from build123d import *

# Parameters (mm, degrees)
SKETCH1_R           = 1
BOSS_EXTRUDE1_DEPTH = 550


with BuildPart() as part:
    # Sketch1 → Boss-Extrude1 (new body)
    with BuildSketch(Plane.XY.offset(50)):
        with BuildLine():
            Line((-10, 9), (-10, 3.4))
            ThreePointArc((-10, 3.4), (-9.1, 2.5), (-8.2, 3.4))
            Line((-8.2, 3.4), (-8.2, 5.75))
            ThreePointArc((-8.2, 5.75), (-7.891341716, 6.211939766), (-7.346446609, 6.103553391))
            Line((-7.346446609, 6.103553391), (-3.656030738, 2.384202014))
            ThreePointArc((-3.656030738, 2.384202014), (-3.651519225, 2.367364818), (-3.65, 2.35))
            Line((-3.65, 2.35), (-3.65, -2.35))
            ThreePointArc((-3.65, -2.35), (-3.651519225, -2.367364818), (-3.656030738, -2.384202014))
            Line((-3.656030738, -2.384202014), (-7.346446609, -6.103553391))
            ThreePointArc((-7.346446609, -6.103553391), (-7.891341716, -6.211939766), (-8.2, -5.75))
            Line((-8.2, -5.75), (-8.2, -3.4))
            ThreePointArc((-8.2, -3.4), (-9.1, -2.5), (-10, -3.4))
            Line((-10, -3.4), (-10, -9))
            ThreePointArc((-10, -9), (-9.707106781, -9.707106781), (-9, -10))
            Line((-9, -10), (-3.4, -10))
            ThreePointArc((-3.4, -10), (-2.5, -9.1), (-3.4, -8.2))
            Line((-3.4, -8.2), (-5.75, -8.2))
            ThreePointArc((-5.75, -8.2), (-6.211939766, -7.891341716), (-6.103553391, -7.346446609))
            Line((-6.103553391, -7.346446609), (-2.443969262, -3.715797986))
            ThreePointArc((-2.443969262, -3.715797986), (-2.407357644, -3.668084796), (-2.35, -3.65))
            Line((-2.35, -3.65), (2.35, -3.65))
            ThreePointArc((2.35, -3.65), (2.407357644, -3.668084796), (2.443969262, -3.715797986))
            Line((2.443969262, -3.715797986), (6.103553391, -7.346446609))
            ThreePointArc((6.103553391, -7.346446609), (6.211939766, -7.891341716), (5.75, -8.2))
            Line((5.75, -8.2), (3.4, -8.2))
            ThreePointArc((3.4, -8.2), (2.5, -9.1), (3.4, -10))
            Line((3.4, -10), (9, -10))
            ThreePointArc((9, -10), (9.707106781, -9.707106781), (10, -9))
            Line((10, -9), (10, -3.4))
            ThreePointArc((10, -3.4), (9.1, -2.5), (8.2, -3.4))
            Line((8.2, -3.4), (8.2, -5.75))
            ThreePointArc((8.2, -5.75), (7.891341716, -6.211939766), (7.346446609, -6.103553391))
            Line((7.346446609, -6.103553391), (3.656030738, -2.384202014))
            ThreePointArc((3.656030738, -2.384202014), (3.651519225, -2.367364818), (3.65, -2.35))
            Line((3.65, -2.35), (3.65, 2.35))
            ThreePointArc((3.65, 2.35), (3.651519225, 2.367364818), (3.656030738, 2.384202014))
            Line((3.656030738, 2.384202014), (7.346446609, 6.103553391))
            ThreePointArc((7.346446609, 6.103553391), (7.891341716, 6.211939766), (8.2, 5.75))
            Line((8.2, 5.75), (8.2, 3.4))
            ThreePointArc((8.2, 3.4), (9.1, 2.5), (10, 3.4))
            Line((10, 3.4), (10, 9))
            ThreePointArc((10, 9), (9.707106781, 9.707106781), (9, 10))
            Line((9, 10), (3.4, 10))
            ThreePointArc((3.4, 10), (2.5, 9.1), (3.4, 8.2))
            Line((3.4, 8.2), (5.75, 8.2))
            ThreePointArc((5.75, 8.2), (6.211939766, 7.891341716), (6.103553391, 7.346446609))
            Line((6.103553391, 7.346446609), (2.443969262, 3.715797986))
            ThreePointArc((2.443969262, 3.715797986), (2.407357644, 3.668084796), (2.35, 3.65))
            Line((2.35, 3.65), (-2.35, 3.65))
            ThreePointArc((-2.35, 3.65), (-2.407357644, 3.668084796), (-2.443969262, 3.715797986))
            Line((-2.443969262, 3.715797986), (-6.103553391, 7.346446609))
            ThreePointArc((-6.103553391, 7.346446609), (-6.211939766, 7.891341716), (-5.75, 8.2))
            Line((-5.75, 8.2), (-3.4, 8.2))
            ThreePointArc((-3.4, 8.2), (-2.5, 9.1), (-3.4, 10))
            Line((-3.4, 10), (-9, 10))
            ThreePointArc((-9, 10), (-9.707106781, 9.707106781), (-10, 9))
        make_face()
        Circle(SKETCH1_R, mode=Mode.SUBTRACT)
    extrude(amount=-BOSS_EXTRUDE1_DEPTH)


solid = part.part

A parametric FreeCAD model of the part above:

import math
import FreeCAD as App
import Part
import Sketcher
from FreeCAD import Vector

doc = App.newDocument("Part")
body = doc.addObject("PartDesign::Body", "Body")

# Sketch on XY plane
sketch1 = body.newObject("Sketcher::SketchObject", "Sketch")
sketch1.AttachmentSupport = (doc.getObject("XY_Plane"), [""])
sketch1.MapMode = "FlatFace"
sketch1.AttachmentOffset = App.Placement(Vector(0, 0, 50), App.Rotation())
sketch1.addGeometry([
    Part.LineSegment(Vector(-10, 9, 0), Vector(-10, 3.4, 0)),  # 0
    Part.ArcOfCircle(Part.Circle(Vector(-9.1, 3.4, 0), Vector(0, 0, 1), 0.9), math.radians(180), math.radians(360)),  # 1
    Part.LineSegment(Vector(-8.2, 3.4, 0), Vector(-8.2, 5.75, 0)),  # 2
    Part.ArcOfCircle(Part.Circle(Vector(-7.7, 5.75, 0), Vector(0, 0, 1), 0.5), math.radians(45), math.radians(180)),  # 3
    Part.LineSegment(Vector(-7.346447, 6.103553, 0), Vector(-3.656031, 2.384202, 0)),  # 4
    Part.ArcOfCircle(Part.Circle(Vector(-3.75, 2.35, 0), Vector(0, 0, 1), 0.1), math.radians(0.000001), math.radians(19.999999)),  # 5
    Part.LineSegment(Vector(-3.65, 2.35, 0), Vector(-3.65, -2.35, 0)),  # 6
    Part.ArcOfCircle(Part.Circle(Vector(-3.75, -2.35, 0), Vector(0, 0, 1), 0.1), math.radians(-19.999999), math.radians(-0.000001)),  # 7
    Part.LineSegment(Vector(-3.656031, -2.384202, 0), Vector(-7.346447, -6.103553, 0)),  # 8
    Part.ArcOfCircle(Part.Circle(Vector(-7.7, -5.75, 0), Vector(0, 0, 1), 0.5), math.radians(-180), math.radians(-45)),  # 9
    Part.LineSegment(Vector(-8.2, -5.75, 0), Vector(-8.2, -3.4, 0)),  # 10
    Part.ArcOfCircle(Part.Circle(Vector(-9.1, -3.4, 0), Vector(0, 0, 1), 0.9), math.radians(0), math.radians(180)),  # 11
    Part.LineSegment(Vector(-10, -3.4, 0), Vector(-10, -9, 0)),  # 12
    Part.ArcOfCircle(Part.Circle(Vector(-9, -9, 0), Vector(0, 0, 1), 1), math.radians(-180), math.radians(-90)),  # 13
    Part.LineSegment(Vector(-9, -10, 0), Vector(-3.4, -10, 0)),  # 14
    Part.ArcOfCircle(Part.Circle(Vector(-3.4, -9.1, 0), Vector(0, 0, 1), 0.9), math.radians(-90), math.radians(90)),  # 15
    Part.LineSegment(Vector(-3.4, -8.2, 0), Vector(-5.75, -8.2, 0)),  # 16
    Part.ArcOfCircle(Part.Circle(Vector(-5.75, -7.7, 0), Vector(0, 0, 1), 0.5), math.radians(135), math.radians(270)),  # 17
    Part.LineSegment(Vector(-6.103553, -7.346447, 0), Vector(-2.443969, -3.715798, 0)),  # 18
    Part.ArcOfCircle(Part.Circle(Vector(-2.35, -3.75, 0), Vector(0, 0, 1), 0.1), math.radians(90), math.radians(160)),  # 19
    Part.LineSegment(Vector(-2.35, -3.65, 0), Vector(2.35, -3.65, 0)),  # 20
    Part.ArcOfCircle(Part.Circle(Vector(2.35, -3.75, 0), Vector(0, 0, 1), 0.1), math.radians(20), math.radians(90)),  # 21
    Part.LineSegment(Vector(2.443969, -3.715798, 0), Vector(6.103553, -7.346447, 0)),  # 22
    Part.ArcOfCircle(Part.Circle(Vector(5.75, -7.7, 0), Vector(0, 0, 1), 0.5), math.radians(-90), math.radians(45)),  # 23
    Part.LineSegment(Vector(5.75, -8.2, 0), Vector(3.4, -8.2, 0)),  # 24
    Part.ArcOfCircle(Part.Circle(Vector(3.4, -9.1, 0), Vector(0, 0, 1), 0.9), math.radians(90), math.radians(270)),  # 25
    Part.LineSegment(Vector(3.4, -10, 0), Vector(9, -10, 0)),  # 26
    Part.ArcOfCircle(Part.Circle(Vector(9, -9, 0), Vector(0, 0, 1), 1), math.radians(-90), math.radians(0)),  # 27
    Part.LineSegment(Vector(10, -9, 0), Vector(10, -3.4, 0)),  # 28
    Part.ArcOfCircle(Part.Circle(Vector(9.1, -3.4, 0), Vector(0, 0, 1), 0.9), math.radians(0), math.radians(180)),  # 29
    Part.LineSegment(Vector(8.2, -3.4, 0), Vector(8.2, -5.75, 0)),  # 30
    Part.ArcOfCircle(Part.Circle(Vector(7.7, -5.75, 0), Vector(0, 0, 1), 0.5), math.radians(-135), math.radians(0)),  # 31
    Part.LineSegment(Vector(7.346447, -6.103553, 0), Vector(3.656031, -2.384202, 0)),  # 32
    Part.ArcOfCircle(Part.Circle(Vector(3.75, -2.35, 0), Vector(0, 0, 1), 0.1), math.radians(-179.999999), math.radians(-160.000001)),  # 33
    Part.LineSegment(Vector(3.65, -2.35, 0), Vector(3.65, 2.35, 0)),  # 34
    Part.ArcOfCircle(Part.Circle(Vector(3.75, 2.35, 0), Vector(0, 0, 1), 0.1), math.radians(160.000001), math.radians(179.999999)),  # 35
    Part.LineSegment(Vector(3.656031, 2.384202, 0), Vector(7.346447, 6.103553, 0)),  # 36
    Part.ArcOfCircle(Part.Circle(Vector(7.7, 5.75, 0), Vector(0, 0, 1), 0.5), math.radians(0), math.radians(135)),  # 37
    Part.LineSegment(Vector(8.2, 5.75, 0), Vector(8.2, 3.4, 0)),  # 38
    Part.ArcOfCircle(Part.Circle(Vector(9.1, 3.4, 0), Vector(0, 0, 1), 0.9), math.radians(180), math.radians(360)),  # 39
    Part.LineSegment(Vector(10, 3.4, 0), Vector(10, 9, 0)),  # 40
    Part.ArcOfCircle(Part.Circle(Vector(9, 9, 0), Vector(0, 0, 1), 1), math.radians(0), math.radians(90)),  # 41
    Part.LineSegment(Vector(9, 10, 0), Vector(3.4, 10, 0)),  # 42
    Part.ArcOfCircle(Part.Circle(Vector(3.4, 9.1, 0), Vector(0, 0, 1), 0.9), math.radians(90), math.radians(270)),  # 43
    Part.LineSegment(Vector(3.4, 8.2, 0), Vector(5.75, 8.2, 0)),  # 44
    Part.ArcOfCircle(Part.Circle(Vector(5.75, 7.7, 0), Vector(0, 0, 1), 0.5), math.radians(-45), math.radians(90)),  # 45
    Part.LineSegment(Vector(6.103553, 7.346447, 0), Vector(2.443969, 3.715798, 0)),  # 46
    Part.ArcOfCircle(Part.Circle(Vector(2.35, 3.75, 0), Vector(0, 0, 1), 0.1), math.radians(-90), math.radians(-20)),  # 47
    Part.LineSegment(Vector(2.35, 3.65, 0), Vector(-2.35, 3.65, 0)),  # 48
    Part.ArcOfCircle(Part.Circle(Vector(-2.35, 3.75, 0), Vector(0, 0, 1), 0.1), math.radians(-160), math.radians(-90)),  # 49
    Part.LineSegment(Vector(-2.443969, 3.715798, 0), Vector(-6.103553, 7.346447, 0)),  # 50
    Part.ArcOfCircle(Part.Circle(Vector(-5.75, 7.7, 0), Vector(0, 0, 1), 0.5), math.radians(90), math.radians(225)),  # 51
    Part.LineSegment(Vector(-5.75, 8.2, 0), Vector(-3.4, 8.2, 0)),  # 52
    Part.ArcOfCircle(Part.Circle(Vector(-3.4, 9.1, 0), Vector(0, 0, 1), 0.9), math.radians(-90), math.radians(90)),  # 53
    Part.LineSegment(Vector(-3.4, 10, 0), Vector(-9, 10, 0)),  # 54
    Part.ArcOfCircle(Part.Circle(Vector(-9, 9, 0), Vector(0, 0, 1), 1), math.radians(90), math.radians(180)),  # 55
    Part.Circle(Vector(0, 0, 0), Vector(0, 0, 1), 1),  # 56
], False)
sketch1.addConstraint([
    Sketcher.Constraint("Tangent", 0, 2, 1, 1),
    Sketcher.Constraint("Tangent", 1, 2, 2, 1),
    Sketcher.Constraint("Tangent", 2, 2, 3, 2),
    Sketcher.Constraint("Coincident", 3, 1, 4, 1),
    Sketcher.Constraint("Coincident", 4, 2, 5, 2),
    Sketcher.Constraint("Tangent", 5, 1, 6, 1),
    Sketcher.Constraint("Tangent", 6, 2, 7, 2),
    Sketcher.Constraint("Coincident", 7, 1, 8, 1),
    Sketcher.Constraint("Coincident", 8, 2, 9, 2),
    Sketcher.Constraint("Tangent", 9, 1, 10, 1),
    Sketcher.Constraint("Tangent", 10, 2, 11, 1),
    Sketcher.Constraint("Tangent", 11, 2, 12, 1),
    Sketcher.Constraint("Tangent", 12, 2, 13, 1),
    Sketcher.Constraint("Tangent", 13, 2, 14, 1),
    Sketcher.Constraint("Tangent", 14, 2, 15, 1),
    Sketcher.Constraint("Tangent", 15, 2, 16, 1),
    Sketcher.Constraint("Tangent", 16, 2, 17, 2),
    Sketcher.Constraint("Coincident", 17, 1, 18, 1),
    Sketcher.Constraint("Coincident", 18, 2, 19, 2),
    Sketcher.Constraint("Tangent", 19, 1, 20, 1),
    Sketcher.Constraint("Tangent", 20, 2, 21, 2),
    Sketcher.Constraint("Coincident", 21, 1, 22, 1),
    Sketcher.Constraint("Coincident", 22, 2, 23, 2),
    Sketcher.Constraint("Tangent", 23, 1, 24, 1),
    Sketcher.Constraint("Tangent", 24, 2, 25, 1),
    Sketcher.Constraint("Tangent", 25, 2, 26, 1),
    Sketcher.Constraint("Tangent", 26, 2, 27, 1),
    Sketcher.Constraint("Tangent", 27, 2, 28, 1),
    Sketcher.Constraint("Tangent", 28, 2, 29, 1),
    Sketcher.Constraint("Tangent", 29, 2, 30, 1),
    Sketcher.Constraint("Tangent", 30, 2, 31, 2),
    Sketcher.Constraint("Coincident", 31, 1, 32, 1),
    Sketcher.Constraint("Coincident", 32, 2, 33, 2),
    Sketcher.Constraint("Tangent", 33, 1, 34, 1),
    Sketcher.Constraint("Tangent", 34, 2, 35, 2),
    Sketcher.Constraint("Coincident", 35, 1, 36, 1),
    Sketcher.Constraint("Coincident", 36, 2, 37, 2),
    Sketcher.Constraint("Tangent", 37, 1, 38, 1),
    Sketcher.Constraint("Tangent", 38, 2, 39, 1),
    Sketcher.Constraint("Tangent", 39, 2, 40, 1),
    Sketcher.Constraint("Tangent", 40, 2, 41, 1),
    Sketcher.Constraint("Tangent", 41, 2, 42, 1),
    Sketcher.Constraint("Tangent", 42, 2, 43, 1),
    Sketcher.Constraint("Tangent", 43, 2, 44, 1),
    Sketcher.Constraint("Tangent", 44, 2, 45, 2),
    Sketcher.Constraint("Coincident", 45, 1, 46, 1),
    Sketcher.Constraint("Coincident", 46, 2, 47, 2),
    Sketcher.Constraint("Tangent", 47, 1, 48, 1),
    Sketcher.Constraint("Tangent", 48, 2, 49, 2),
    Sketcher.Constraint("Coincident", 49, 1, 50, 1),
    Sketcher.Constraint("Coincident", 50, 2, 51, 2),
    Sketcher.Constraint("Tangent", 51, 1, 52, 1),
    Sketcher.Constraint("Tangent", 52, 2, 53, 1),
    Sketcher.Constraint("Tangent", 53, 2, 54, 1),
    Sketcher.Constraint("Tangent", 54, 2, 55, 1),
    Sketcher.Constraint("Tangent", 55, 2, 0, 1),
    Sketcher.Constraint("Vertical", 0),
    Sketcher.Constraint("Vertical", 2),
    Sketcher.Constraint("Vertical", 6),
    Sketcher.Constraint("Vertical", 10),
    Sketcher.Constraint("Vertical", 12),
    Sketcher.Constraint("Horizontal", 14),
    Sketcher.Constraint("Horizontal", 16),
    Sketcher.Constraint("Horizontal", 20),
    Sketcher.Constraint("Horizontal", 24),
    Sketcher.Constraint("Horizontal", 26),
    Sketcher.Constraint("Vertical", 28),
    Sketcher.Constraint("Vertical", 30),
    Sketcher.Constraint("Vertical", 34),
    Sketcher.Constraint("Vertical", 38),
    Sketcher.Constraint("Vertical", 40),
    Sketcher.Constraint("Horizontal", 42),
    Sketcher.Constraint("Horizontal", 44),
    Sketcher.Constraint("Horizontal", 48),
    Sketcher.Constraint("Horizontal", 52),
    Sketcher.Constraint("Horizontal", 54),
    Sketcher.Constraint("Coincident", 56, 3, -1, 1),
    Sketcher.Constraint("Equal", 5, 7),
    Sketcher.Constraint("Equal", 3, 9),
    Sketcher.Constraint("Equal", 1, 11),
    Sketcher.Constraint("Equal", 11, 15),
    Sketcher.Constraint("Equal", 9, 17),
    Sketcher.Constraint("Equal", 7, 19),
    Sketcher.Constraint("Equal", 19, 21),
    Sketcher.Constraint("Equal", 17, 23),
    Sketcher.Constraint("Equal", 15, 25),
    Sketcher.Constraint("Equal", 13, 27),
    Sketcher.Constraint("Equal", 25, 29),
    Sketcher.Constraint("Equal", 23, 31),
    Sketcher.Constraint("Equal", 21, 33),
    Sketcher.Constraint("Equal", 33, 35),
    Sketcher.Constraint("Equal", 31, 37),
    Sketcher.Constraint("Equal", 29, 39),
    Sketcher.Constraint("Equal", 27, 41),
    Sketcher.Constraint("Equal", 39, 43),
    Sketcher.Constraint("Equal", 37, 45),
    Sketcher.Constraint("Equal", 35, 47),
    Sketcher.Constraint("Equal", 47, 49),
    Sketcher.Constraint("Equal", 45, 51),
    Sketcher.Constraint("Equal", 43, 53),
    Sketcher.Constraint("Equal", 41, 55),
    Sketcher.Constraint("Equal", 55, 56),
    Sketcher.Constraint("Symmetric", 1, 3, 29, 3, -1, 1),
    Sketcher.Constraint("Symmetric", 5, 3, 33, 3, -1, 1),
    Sketcher.Constraint("Symmetric", 9, 3, 37, 3, -1, 1),
    Sketcher.Constraint("Symmetric", 15, 3, 43, 3, -1, 1),
    Sketcher.Constraint("Symmetric", 19, 3, 47, 3, -1, 1),
    Sketcher.Constraint("Symmetric", 23, 3, 51, 3, -1, 1),
    Sketcher.Constraint("Symmetric", 3, 1, 31, 1, -1, 1),
    Sketcher.Constraint("Symmetric", 7, 1, 35, 1, -1, 1),
    Sketcher.Constraint("Symmetric", 17, 1, 45, 1, -1, 1),
    Sketcher.Constraint("Symmetric", 21, 1, 49, 1, -1, 1),
    Sketcher.Constraint("Symmetric", 17, 3, 23, 3, -2),
    Sketcher.Constraint("Symmetric", 11, 3, 29, 3, -2),
    Sketcher.Constraint("Symmetric", 18, 2, 21, 1, -2),
    Sketcher.Constraint("Symmetric", 8, 2, 31, 1, -2),
    Sketcher.Constraint("Symmetric", 7, 1, 32, 2, -2),
    Sketcher.Constraint("Parallel", 4, 32),
    Sketcher.Constraint("Parallel", 18, 46),
    Sketcher.Constraint("Horizontal", 1, 3, 39, 3),
    Sketcher.Constraint("Horizontal", 17, 1, 22, 2),
    Sketcher.Constraint("Horizontal", 3, 1, 36, 2),
    Sketcher.Constraint("Horizontal", 45, 1, 50, 2),
    Sketcher.Constraint("Vertical", 25, 3, 43, 3),
    Sketcher.Constraint("Vertical", 15, 3, 53, 3),
    Sketcher.Constraint("Equal", 54, 0),
    Sketcher.Constraint("Equal", 52, 2),
    Sketcher.Constraint("Equal", 48, 6),
    Sketcher.Constraint("Diameter", 56, 2.0),
    Sketcher.Constraint("Radius", 1, 0.9),
    Sketcher.Constraint("Radius", 3, 0.5),
    Sketcher.Constraint("Radius", 5, 0.1),
    Sketcher.Constraint("DistanceX", 14, 1, 14, 2, 5.6),
    Sketcher.Constraint("DistanceX", 20, 1, 20, 2, 4.7),
    Sketcher.Constraint("DistanceX", 13, 3, -1, 1, 9.0),
    Sketcher.Constraint("DistanceY", 13, 3, -1, 1, 9.0),
    Sketcher.Constraint("DistanceX", 16, 2, 16, 1, 2.35),
    Sketcher.Constraint("DistanceX", 5, 3, -1, 1, 3.75),
    Sketcher.Constraint("DistanceY", 19, 3, -1, 1, 3.75),
    Sketcher.Constraint("DistanceX", 4, 2, -1, 1, 3.656031),
    Sketcher.Constraint("DistanceX", 18, 2, -1, 1, 2.443969),
    Sketcher.Constraint("Distance", 4, 5.239537),
    Sketcher.Constraint("Distance", 18, 5.155014),
])
pad1 = body.newObject("PartDesign::Pad", "Pad")
pad1.Profile = sketch1
pad1.Length = 550
pad1.Reversed = True

doc.recompute()
